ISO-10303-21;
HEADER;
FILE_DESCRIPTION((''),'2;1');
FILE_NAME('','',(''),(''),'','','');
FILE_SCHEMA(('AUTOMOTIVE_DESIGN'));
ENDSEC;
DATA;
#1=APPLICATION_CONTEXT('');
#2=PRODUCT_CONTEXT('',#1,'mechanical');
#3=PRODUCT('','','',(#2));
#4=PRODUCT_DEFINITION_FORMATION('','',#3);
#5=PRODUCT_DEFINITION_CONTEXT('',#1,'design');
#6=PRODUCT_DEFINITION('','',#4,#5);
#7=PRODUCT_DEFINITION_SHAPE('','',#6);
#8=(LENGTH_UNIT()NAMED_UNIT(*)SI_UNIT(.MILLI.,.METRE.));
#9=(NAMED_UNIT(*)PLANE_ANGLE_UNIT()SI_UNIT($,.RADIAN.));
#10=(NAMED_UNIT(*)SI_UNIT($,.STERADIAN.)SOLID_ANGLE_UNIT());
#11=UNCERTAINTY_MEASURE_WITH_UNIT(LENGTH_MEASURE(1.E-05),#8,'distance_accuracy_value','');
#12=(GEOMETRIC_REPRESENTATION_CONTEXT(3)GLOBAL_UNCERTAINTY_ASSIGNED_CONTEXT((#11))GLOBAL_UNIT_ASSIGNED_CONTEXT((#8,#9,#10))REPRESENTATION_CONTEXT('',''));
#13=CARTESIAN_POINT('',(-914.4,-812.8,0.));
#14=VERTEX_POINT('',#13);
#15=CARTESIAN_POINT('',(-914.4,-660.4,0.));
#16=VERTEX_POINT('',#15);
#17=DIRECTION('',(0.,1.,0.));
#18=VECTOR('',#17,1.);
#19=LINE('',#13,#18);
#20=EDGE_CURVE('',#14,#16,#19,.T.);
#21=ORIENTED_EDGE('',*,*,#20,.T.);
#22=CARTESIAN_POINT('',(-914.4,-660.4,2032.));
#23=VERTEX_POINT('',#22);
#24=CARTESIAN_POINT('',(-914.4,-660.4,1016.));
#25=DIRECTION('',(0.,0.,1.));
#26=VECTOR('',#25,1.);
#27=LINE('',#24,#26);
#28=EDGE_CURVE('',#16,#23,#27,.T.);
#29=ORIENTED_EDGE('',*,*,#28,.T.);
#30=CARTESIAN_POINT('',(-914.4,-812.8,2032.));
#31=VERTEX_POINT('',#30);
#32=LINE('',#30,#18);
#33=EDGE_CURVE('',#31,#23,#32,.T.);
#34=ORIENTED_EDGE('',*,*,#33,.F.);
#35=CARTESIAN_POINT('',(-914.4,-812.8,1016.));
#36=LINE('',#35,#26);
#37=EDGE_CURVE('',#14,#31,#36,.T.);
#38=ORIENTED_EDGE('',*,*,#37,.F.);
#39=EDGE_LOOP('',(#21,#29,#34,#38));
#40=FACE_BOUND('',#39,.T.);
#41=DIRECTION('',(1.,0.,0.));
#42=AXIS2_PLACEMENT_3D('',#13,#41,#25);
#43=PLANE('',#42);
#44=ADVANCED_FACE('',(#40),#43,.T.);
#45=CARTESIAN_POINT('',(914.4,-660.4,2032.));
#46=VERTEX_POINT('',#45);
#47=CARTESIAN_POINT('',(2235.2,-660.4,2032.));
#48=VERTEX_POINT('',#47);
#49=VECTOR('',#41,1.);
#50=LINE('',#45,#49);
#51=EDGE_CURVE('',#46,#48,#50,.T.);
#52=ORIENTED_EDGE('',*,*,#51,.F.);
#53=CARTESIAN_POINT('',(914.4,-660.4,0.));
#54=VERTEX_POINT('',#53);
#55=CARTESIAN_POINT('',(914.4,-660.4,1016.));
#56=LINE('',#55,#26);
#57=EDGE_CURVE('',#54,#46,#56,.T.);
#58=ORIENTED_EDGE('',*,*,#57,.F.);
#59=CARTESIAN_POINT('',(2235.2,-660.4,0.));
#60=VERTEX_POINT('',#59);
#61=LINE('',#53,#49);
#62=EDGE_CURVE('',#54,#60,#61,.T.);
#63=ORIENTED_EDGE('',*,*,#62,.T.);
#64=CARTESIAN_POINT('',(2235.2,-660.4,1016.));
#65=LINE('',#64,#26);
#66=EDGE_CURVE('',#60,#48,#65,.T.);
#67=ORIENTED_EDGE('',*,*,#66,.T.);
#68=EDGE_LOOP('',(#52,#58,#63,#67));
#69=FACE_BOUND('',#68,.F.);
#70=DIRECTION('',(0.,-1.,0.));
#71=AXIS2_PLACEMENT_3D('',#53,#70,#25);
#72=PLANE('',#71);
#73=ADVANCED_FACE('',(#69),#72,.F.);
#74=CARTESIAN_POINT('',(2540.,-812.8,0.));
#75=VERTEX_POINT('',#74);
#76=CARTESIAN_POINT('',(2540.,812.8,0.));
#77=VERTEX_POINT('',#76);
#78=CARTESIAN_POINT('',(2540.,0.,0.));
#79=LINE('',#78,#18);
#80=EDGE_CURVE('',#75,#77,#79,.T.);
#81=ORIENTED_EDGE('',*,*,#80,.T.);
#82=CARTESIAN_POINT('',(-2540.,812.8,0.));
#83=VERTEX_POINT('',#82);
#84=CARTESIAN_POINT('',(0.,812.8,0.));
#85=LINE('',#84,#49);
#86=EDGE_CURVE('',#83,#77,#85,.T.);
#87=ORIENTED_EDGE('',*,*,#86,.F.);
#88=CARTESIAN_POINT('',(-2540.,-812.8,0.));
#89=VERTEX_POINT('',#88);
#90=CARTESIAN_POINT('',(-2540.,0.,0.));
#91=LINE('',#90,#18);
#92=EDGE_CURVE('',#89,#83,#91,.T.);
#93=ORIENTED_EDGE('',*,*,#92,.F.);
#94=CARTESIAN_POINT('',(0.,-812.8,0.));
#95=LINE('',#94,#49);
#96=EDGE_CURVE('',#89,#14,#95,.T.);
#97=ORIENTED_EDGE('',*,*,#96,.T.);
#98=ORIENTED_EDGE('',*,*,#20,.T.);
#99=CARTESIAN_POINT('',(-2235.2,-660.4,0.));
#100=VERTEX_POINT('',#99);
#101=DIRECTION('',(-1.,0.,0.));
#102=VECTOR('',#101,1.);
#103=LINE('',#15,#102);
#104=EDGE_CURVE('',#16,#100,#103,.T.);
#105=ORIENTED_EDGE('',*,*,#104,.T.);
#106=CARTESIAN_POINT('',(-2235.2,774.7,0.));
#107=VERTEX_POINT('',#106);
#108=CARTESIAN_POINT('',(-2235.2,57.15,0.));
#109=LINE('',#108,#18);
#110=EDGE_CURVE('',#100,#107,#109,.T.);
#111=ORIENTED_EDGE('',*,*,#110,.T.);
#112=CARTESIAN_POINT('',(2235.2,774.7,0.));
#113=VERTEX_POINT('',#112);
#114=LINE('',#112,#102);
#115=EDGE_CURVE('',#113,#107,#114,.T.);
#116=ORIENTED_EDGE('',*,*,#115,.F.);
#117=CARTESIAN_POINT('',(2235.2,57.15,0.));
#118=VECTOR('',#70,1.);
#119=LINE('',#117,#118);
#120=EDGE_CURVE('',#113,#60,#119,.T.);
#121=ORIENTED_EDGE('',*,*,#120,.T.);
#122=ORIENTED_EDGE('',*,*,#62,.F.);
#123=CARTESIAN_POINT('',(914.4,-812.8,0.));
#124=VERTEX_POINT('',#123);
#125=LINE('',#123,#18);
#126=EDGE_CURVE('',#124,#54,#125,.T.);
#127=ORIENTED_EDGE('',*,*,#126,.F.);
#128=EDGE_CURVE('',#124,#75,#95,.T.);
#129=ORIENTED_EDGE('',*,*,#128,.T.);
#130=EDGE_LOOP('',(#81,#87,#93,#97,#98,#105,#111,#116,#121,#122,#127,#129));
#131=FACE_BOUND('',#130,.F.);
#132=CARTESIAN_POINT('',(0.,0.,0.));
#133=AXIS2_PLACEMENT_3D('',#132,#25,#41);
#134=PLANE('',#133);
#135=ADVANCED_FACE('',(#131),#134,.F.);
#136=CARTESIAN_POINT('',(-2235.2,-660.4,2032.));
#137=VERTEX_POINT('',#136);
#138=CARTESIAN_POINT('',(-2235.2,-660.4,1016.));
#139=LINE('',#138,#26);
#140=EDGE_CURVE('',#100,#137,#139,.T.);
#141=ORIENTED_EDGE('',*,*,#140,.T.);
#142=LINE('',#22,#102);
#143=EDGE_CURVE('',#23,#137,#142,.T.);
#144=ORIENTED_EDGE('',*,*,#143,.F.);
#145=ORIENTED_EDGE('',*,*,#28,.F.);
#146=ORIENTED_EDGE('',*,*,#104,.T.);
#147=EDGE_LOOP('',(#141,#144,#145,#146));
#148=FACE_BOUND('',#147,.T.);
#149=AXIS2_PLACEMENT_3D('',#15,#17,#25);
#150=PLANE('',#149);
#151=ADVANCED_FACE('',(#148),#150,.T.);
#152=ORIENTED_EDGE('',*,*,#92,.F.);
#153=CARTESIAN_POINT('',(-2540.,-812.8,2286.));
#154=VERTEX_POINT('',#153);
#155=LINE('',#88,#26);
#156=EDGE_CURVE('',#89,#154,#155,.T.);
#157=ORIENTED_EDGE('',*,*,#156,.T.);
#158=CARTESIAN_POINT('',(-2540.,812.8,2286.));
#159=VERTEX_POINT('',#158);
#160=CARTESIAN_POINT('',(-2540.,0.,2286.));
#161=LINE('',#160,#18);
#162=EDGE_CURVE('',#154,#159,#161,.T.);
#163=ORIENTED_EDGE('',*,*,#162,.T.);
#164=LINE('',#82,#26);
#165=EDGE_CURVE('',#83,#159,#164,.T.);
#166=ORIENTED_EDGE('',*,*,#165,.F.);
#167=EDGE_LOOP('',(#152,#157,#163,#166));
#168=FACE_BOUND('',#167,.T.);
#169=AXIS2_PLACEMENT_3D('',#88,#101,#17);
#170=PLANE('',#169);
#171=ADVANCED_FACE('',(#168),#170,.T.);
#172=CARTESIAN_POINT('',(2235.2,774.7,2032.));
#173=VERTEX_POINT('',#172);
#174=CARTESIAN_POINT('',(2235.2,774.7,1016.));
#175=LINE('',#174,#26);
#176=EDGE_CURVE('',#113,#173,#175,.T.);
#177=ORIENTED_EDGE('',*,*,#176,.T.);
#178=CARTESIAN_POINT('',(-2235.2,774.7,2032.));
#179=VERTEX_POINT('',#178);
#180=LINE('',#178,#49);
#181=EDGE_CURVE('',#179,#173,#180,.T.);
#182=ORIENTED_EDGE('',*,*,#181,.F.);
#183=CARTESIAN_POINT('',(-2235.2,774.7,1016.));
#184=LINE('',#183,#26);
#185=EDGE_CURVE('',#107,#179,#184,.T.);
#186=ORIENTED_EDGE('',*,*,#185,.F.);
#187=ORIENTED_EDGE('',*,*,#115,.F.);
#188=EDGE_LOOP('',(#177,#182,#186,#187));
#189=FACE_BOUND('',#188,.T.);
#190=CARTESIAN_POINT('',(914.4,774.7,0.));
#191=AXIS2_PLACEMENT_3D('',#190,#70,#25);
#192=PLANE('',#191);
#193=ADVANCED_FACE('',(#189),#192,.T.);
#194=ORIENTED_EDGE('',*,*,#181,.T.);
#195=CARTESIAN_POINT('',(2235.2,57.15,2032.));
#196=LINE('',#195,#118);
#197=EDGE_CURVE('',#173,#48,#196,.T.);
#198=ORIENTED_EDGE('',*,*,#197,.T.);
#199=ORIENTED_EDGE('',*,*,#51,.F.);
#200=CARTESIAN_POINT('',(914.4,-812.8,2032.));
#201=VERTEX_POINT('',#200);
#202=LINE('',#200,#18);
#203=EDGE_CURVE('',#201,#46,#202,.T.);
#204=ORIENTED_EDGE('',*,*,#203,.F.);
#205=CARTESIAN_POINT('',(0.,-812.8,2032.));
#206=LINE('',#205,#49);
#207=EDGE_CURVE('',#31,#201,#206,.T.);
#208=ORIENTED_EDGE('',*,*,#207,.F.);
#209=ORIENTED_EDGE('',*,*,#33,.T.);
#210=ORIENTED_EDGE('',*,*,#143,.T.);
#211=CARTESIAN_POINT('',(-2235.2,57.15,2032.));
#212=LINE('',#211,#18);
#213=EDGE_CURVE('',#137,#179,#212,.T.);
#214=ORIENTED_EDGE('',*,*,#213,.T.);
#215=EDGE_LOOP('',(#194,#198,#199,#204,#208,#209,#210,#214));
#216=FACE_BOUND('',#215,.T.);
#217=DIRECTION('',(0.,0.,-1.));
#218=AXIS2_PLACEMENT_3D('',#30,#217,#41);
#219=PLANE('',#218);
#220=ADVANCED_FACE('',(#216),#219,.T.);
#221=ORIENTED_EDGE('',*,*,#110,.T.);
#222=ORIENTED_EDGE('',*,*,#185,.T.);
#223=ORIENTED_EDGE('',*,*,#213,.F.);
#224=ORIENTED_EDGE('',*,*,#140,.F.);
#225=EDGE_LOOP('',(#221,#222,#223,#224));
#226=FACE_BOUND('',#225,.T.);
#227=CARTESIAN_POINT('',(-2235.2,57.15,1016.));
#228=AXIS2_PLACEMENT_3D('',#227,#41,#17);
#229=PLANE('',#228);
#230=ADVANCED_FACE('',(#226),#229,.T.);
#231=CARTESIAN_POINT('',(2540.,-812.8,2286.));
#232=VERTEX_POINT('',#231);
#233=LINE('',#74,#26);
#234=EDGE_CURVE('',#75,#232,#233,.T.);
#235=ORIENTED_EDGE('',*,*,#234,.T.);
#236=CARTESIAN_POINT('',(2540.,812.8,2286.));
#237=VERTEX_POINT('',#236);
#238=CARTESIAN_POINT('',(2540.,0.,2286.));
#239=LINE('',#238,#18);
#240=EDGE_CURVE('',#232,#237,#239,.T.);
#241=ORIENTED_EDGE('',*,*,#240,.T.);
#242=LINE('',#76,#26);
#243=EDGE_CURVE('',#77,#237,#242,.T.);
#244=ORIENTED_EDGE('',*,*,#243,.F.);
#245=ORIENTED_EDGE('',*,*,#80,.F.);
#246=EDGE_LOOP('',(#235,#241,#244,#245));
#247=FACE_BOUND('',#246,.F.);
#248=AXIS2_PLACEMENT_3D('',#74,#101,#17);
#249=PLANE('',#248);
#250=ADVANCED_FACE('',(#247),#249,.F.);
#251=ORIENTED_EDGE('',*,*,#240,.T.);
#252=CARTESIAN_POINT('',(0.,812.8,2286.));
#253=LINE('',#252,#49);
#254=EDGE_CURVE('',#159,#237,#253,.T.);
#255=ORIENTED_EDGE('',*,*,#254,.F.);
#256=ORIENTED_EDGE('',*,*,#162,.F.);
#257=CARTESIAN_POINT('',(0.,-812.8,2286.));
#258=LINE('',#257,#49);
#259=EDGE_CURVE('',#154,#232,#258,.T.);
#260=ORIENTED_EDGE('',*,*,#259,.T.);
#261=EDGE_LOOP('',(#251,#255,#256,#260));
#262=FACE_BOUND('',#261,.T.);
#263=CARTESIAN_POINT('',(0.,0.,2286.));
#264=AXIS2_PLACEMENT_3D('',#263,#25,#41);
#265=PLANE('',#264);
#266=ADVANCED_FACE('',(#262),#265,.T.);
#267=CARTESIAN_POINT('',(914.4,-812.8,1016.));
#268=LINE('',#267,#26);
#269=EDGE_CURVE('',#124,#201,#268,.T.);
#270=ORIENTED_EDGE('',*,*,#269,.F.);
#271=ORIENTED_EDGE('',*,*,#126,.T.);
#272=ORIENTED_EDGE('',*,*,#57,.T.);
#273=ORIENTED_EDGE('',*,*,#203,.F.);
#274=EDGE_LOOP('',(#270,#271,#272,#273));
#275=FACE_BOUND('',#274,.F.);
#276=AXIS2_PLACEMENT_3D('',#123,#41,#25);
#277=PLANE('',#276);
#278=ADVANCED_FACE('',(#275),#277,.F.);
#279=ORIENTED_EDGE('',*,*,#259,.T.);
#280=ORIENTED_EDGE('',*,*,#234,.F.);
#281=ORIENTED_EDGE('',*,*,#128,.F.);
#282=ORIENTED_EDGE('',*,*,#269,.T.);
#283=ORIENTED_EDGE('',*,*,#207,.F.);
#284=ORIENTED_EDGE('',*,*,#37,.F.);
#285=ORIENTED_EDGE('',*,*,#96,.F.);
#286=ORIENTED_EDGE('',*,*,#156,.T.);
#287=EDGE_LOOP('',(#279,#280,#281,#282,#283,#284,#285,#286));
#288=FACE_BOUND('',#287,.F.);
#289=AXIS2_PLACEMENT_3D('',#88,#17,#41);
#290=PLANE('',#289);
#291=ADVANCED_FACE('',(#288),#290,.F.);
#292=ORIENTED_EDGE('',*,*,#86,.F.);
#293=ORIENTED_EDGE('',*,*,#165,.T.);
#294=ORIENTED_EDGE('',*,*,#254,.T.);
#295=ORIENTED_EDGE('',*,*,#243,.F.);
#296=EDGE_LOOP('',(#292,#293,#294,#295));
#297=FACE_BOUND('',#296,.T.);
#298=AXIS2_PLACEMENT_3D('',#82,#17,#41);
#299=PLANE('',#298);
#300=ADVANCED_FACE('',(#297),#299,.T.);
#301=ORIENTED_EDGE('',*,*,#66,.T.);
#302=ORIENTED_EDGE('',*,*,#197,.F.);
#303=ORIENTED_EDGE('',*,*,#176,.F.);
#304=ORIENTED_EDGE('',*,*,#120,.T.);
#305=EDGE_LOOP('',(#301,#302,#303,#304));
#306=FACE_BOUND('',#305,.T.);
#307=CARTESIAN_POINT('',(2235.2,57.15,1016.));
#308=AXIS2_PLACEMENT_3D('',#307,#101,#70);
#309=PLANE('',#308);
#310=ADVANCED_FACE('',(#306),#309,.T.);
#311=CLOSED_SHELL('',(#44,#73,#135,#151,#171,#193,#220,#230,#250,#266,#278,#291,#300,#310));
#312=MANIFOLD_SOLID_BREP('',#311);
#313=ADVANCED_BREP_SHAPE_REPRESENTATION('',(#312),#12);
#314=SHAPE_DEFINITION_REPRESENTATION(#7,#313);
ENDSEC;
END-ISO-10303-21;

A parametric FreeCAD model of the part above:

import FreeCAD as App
import Part
import Sketcher
Q = App.Units.Quantity


def add_polygon(sketch, points):
    """Adds a closed chain of lines whose ends are joined by coincident constraints."""
    first, n = sketch.GeometryCount, len(points)
    for a, b in zip(points, points[1:] + points[:1]):
        sketch.addGeometry(Part.LineSegment(App.Vector(*a, 0), App.Vector(*b, 0)), False)
    for i in range(n):
        sketch.addConstraint(Sketcher.Constraint("Coincident", first + i, 2, first + (i + 1) % n, 1))

doc = App.newDocument("Part")
body = doc.addObject("PartDesign::Body", "Body")

sketch1 = doc.addObject("Sketcher::SketchObject", "Sketch")
body.addObject(sketch1)
sketch1.AttachmentSupport = (doc.XY_Plane, [""])
sketch1.MapMode = "FlatFace"
add_polygon(sketch1, [(-2540, 813), (-2540, -813), (2540, -813), (2540, 813)])
sketch1.addConstraint([
    Sketcher.Constraint("Vertical", 0),
    Sketcher.Constraint("Horizontal", 1),
    Sketcher.Constraint("Vertical", 2),
    Sketcher.Constraint("Horizontal", 3),
    Sketcher.Constraint("Symmetric", 0, 2, 2, 2, -1, 1),
    Sketcher.Constraint("DistanceX", 1, 1, 1, 2, Q("200 in")),
    Sketcher.Constraint("DistanceY", 0, 2, 0, 1, Q("64 in")),
])
pad1 = doc.addObject("PartDesign::Pad", "Pad")
body.addObject(pad1)
pad1.Profile = sketch1
pad1.Length = Q("90 in")

sketch2 = doc.addObject("Sketcher::SketchObject", "Sketch001")
body.addObject(sketch2)
sketch2.AttachmentSupport = (doc.XZ_Plane, [""])
sketch2.MapMode = "FlatFace"
sketch2.AttachmentOffset = App.Placement(App.Vector(0, 0, 32 * 25.4), App.Rotation())
add_polygon(sketch2, [(-914, 2032), (-914, 0), (914, 0), (914, 2032)])
sketch2.addConstraint([
    Sketcher.Constraint("Vertical", 0),
    Sketcher.Constraint("Horizontal", 1),
    Sketcher.Constraint("Vertical", 2),
    Sketcher.Constraint("Horizontal", 3),
    Sketcher.Constraint("Symmetric", 0, 2, 1, 2, -1, 1),
    Sketcher.Constraint("DistanceX", 1, 1, 1, 2, Q("72 in")),
    Sketcher.Constraint("DistanceY", 0, 2, 0, 1, Q("80 in")),
])
pocket1 = doc.addObject("PartDesign::Pocket", "Pocket")
body.addObject(pocket1)
pocket1.Profile = sketch2
pocket1.Length = Q("62.5 in")

sketch3 = doc.addObject("Sketcher::SketchObject", "Sketch002")
body.addObject(sketch3)
sketch3.AttachmentSupport = (doc.YZ_Plane, [""])
sketch3.MapMode = "FlatFace"
sketch3.AttachmentOffset = App.Placement(App.Vector(0, 0, 36 * 25.4), App.Rotation())
add_polygon(sketch3, [(775, 2032), (775, 0), (-660, 0), (-660, 2032)])
sketch3.addConstraint([
    Sketcher.Constraint("Vertical", 0),
    Sketcher.Constraint("Horizontal", 1),
    Sketcher.Constraint("Vertical", 2),
    Sketcher.Constraint("Horizontal", 3),
    Sketcher.Constraint("PointOnObject", 0, 2, -1),
    Sketcher.Constraint("DistanceY", 0, 2, 0, 1, Q("80 in")),
    Sketcher.Constraint("DistanceX", 1, 2, 1, 1, Q("56.5 in")),
    Sketcher.Constraint("DistanceX", 1, 2, -1, 1, Q("26 in")),
])
pocket2 = doc.addObject("PartDesign::Pocket", "Pocket001")
body.addObject(pocket2)
pocket2.Profile = sketch3
pocket2.Length = Q("52 in")
pocket2.Reversed = True

sketch4 = doc.addObject("Sketcher::SketchObject", "Sketch003")
body.addObject(sketch4)
sketch4.AttachmentSupport = (doc.YZ_Plane, [""])
sketch4.MapMode = "FlatFace"
sketch4.AttachmentOffset = App.Placement(App.Vector(0, 0, -36 * 25.4), App.Rotation())
add_polygon(sketch4, [(-660, 2032), (-660, 0), (775, 0), (775, 2032)])
sketch4.addConstraint([
    Sketcher.Constraint("Vertical", 0),
    Sketcher.Constraint("Horizontal", 1),
    Sketcher.Constraint("Vertical", 2),
    Sketcher.Constraint("Horizontal", 3),
    Sketcher.Constraint("PointOnObject", 0, 2, -1),
    Sketcher.Constraint("DistanceY", 0, 2, 0, 1, Q("80 in")),
    Sketcher.Constraint("DistanceX", 1, 1, 1, 2, Q("56.5 in")),
    Sketcher.Constraint("DistanceX", 0, 2, -1, 1, Q("26 in")),
])
pocket3 = doc.addObject("PartDesign::Pocket", "Pocket002")
body.addObject(pocket3)
pocket3.Profile = sketch4
pocket3.Length = Q("52 in")

doc.recompute()
